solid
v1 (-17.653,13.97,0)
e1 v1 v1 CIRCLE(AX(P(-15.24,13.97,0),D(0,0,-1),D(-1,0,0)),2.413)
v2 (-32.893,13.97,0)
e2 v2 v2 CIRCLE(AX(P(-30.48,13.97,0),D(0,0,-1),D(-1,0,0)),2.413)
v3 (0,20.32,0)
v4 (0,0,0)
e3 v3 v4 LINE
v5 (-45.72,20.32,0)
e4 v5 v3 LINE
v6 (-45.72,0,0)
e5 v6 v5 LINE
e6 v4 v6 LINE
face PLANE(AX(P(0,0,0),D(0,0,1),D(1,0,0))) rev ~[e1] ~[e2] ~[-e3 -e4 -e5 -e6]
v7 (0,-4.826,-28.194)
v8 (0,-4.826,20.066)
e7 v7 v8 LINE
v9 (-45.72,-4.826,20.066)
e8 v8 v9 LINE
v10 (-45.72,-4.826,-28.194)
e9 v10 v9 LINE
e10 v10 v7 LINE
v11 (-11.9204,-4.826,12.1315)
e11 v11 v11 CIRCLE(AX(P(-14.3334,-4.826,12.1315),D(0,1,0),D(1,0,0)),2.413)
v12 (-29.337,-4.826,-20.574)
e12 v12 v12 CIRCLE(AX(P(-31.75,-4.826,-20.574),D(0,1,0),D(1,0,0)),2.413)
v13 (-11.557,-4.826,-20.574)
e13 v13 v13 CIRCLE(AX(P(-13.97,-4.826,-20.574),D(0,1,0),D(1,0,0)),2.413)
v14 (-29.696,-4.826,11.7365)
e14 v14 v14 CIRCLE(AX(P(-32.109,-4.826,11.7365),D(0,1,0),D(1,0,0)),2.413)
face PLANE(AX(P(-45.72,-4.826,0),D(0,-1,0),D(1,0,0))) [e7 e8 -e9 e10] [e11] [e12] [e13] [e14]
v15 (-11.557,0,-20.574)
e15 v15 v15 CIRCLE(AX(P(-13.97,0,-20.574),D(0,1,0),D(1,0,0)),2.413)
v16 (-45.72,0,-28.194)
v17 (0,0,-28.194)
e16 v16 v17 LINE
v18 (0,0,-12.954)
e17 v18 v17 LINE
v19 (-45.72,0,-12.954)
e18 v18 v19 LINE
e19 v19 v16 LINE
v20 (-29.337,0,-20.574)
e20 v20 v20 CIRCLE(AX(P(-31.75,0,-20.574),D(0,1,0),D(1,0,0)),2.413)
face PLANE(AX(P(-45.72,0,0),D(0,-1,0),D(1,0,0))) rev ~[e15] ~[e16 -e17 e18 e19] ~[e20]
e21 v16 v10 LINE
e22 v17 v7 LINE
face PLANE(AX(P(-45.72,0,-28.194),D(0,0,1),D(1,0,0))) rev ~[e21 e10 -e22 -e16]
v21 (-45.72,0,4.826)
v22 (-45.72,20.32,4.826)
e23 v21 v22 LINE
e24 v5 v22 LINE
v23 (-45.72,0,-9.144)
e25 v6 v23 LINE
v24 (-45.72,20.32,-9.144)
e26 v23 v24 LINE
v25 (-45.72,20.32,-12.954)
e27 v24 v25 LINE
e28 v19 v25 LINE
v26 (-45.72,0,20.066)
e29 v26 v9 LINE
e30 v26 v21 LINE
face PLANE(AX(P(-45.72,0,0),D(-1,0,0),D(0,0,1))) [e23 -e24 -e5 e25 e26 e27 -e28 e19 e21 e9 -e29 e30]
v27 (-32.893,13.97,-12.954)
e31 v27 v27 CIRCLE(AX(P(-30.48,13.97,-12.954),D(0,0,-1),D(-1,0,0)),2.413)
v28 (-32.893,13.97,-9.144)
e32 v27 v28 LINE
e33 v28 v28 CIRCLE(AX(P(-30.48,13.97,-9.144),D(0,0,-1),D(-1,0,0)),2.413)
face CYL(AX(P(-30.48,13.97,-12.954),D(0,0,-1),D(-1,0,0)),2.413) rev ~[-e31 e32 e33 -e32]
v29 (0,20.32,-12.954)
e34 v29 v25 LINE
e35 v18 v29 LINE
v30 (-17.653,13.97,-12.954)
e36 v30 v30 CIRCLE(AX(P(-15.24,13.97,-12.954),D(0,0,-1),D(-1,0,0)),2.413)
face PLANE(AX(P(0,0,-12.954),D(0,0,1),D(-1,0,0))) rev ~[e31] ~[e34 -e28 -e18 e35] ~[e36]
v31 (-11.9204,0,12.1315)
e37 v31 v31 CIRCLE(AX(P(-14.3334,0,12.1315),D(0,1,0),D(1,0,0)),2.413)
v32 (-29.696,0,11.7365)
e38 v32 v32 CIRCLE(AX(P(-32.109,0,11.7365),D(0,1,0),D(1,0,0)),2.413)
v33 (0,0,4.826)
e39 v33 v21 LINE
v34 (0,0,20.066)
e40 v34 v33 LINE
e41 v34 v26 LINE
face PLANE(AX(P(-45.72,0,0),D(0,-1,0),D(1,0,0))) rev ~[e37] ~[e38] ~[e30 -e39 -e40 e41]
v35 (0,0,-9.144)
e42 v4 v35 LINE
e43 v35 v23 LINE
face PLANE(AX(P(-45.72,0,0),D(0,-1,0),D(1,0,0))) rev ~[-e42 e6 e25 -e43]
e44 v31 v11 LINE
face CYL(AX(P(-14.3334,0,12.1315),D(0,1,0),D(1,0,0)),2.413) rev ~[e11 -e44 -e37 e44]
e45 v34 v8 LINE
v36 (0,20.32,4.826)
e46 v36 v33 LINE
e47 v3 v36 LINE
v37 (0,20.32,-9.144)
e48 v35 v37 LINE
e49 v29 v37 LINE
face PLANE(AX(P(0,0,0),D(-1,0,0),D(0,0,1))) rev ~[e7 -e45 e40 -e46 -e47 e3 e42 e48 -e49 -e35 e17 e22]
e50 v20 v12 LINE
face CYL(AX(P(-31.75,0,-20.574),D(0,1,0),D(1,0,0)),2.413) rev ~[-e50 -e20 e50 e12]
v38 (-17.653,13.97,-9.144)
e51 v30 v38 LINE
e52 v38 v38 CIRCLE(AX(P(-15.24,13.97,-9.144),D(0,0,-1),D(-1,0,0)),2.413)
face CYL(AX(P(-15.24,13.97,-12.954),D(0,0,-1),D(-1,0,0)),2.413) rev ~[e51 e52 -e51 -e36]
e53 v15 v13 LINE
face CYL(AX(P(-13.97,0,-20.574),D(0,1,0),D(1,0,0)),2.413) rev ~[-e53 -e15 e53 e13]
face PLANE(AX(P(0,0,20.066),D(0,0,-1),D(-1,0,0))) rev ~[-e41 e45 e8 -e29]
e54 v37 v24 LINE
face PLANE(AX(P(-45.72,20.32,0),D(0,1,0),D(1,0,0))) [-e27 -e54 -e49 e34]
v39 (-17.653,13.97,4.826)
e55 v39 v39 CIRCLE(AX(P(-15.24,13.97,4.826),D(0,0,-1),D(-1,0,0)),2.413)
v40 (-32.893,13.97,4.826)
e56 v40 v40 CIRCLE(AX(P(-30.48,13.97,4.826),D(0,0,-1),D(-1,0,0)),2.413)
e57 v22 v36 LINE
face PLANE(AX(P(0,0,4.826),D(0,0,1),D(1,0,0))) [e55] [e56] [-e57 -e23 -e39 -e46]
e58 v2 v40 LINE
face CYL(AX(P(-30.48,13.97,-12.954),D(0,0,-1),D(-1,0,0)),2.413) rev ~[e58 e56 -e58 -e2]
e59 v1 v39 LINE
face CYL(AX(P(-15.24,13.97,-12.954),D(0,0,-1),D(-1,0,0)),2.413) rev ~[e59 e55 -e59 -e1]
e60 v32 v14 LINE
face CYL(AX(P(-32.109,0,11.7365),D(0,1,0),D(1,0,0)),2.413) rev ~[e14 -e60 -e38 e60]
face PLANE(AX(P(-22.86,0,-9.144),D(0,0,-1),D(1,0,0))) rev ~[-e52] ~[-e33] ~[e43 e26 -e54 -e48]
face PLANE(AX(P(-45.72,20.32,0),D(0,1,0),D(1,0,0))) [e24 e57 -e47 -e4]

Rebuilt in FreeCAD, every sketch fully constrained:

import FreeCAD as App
import Part
import Sketcher
Q = App.Units.Quantity


def add_polygon(sketch, points):
    """Adds a closed chain of lines whose ends are joined by coincident constraints."""
    first, n = sketch.GeometryCount, len(points)
    for a, b in zip(points, points[1:] + points[:1]):
        sketch.addGeometry(Part.LineSegment(App.Vector(*a, 0), App.Vector(*b, 0)), False)
    for i in range(n):
        sketch.addConstraint(Sketcher.Constraint("Coincident", first + i, 2, first + (i + 1) % n, 1))

doc = App.newDocument("Part")
body = doc.addObject("PartDesign::Body", "Body")

# Sketch on XY plane
sketch1 = body.newObject("Sketcher::SketchObject", "Sketch")
sketch1.AttachmentSupport = (doc.getObject("XY_Plane"), [""])
sketch1.MapMode = "FlatFace"
add_polygon(sketch1, [(-45.72, 0), (0, 0), (0, 20.32), (-45.72, 20.32)])  # lines 0-3
sketch1.addConstraint([
    Sketcher.Constraint("Horizontal", 0),
    Sketcher.Constraint("Vertical", 1),
    Sketcher.Constraint("Horizontal", 2),
    Sketcher.Constraint("Vertical", 3),
    Sketcher.Constraint("Coincident", 0, 2, -1, 1),
    Sketcher.Constraint("DistanceX", 0, 1, 0, 2, Q("1.8 in")),
    Sketcher.Constraint("DistanceY", 1, 1, 1, 2, Q("0.8 in")),
])
pad1 = body.newObject("PartDesign::Pad", "Pad")
pad1.Profile = sketch1
pad1.Length = Q("0.19 in")

# Sketch on XZ plane
sketch2 = body.newObject("Sketcher::SketchObject", "Sketch001")
sketch2.AttachmentSupport = (doc.getObject("XZ_Plane"), [""])
sketch2.MapMode = "FlatFace"
add_polygon(sketch2, [(-45.72, -28.194), (0, -28.194), (0, 20.066), (-45.72, 20.066)])  # lines 0-3
sketch2.addConstraint([
    Sketcher.Constraint("Horizontal", 0),
    Sketcher.Constraint("Vertical", 1),
    Sketcher.Constraint("Horizontal", 2),
    Sketcher.Constraint("Vertical", 3),
    Sketcher.Constraint("PointOnObject", 0, 2, -2),
    Sketcher.Constraint("DistanceY", 0, 2, -1, 1, Q("1.11 in")),
    Sketcher.Constraint("DistanceX", 0, 1, 0, 2, Q("1.8 in")),
    Sketcher.Constraint("DistanceY", 1, 1, 1, 2, Q("1.9 in")),
])
pad2 = body.newObject("PartDesign::Pad", "Pad001")
pad2.Profile = sketch2
pad2.Length = Q("0.19 in")

# Sketch on XZ plane
sketch3 = body.newObject("Sketcher::SketchObject", "Sketch002")
sketch3.AttachmentSupport = (doc.getObject("XZ_Plane"), [""])
sketch3.MapMode = "FlatFace"
add_polygon(sketch3, [(-45.72, -9.144), (0, -9.144), (0, -12.954), (-45.72, -12.954)])  # lines 0-3
sketch3.addConstraint([
    Sketcher.Constraint("Horizontal", 0),
    Sketcher.Constraint("Vertical", 1),
    Sketcher.Constraint("Horizontal", 2),
    Sketcher.Constraint("Vertical", 3),
    Sketcher.Constraint("PointOnObject", 0, 2, -2),
    Sketcher.Constraint("DistanceY", 1, 2, 1, 1, Q("0.15 in")),
    Sketcher.Constraint("DistanceY", 0, 2, -1, 1, Q("0.36 in")),
    Sketcher.Constraint("DistanceX", 0, 1, 0, 2, Q("1.8 in")),
])
pad3 = body.newObject("PartDesign::Pad", "Pad002")
pad3.Profile = sketch3
pad3.Length = Q("0.8 in")
pad3.Reversed = True

# Sketch on XY plane
sketch4 = body.newObject("Sketcher::SketchObject", "Sketch003")
sketch4.AttachmentSupport = (doc.getObject("XY_Plane"), [""])
sketch4.MapMode = "FlatFace"
sketch4.AttachmentOffset = App.Placement(App.Vector(0, 0, -0.51 * 25.4), App.Rotation())
sketch4.addGeometry([
    Part.Circle(App.Vector(-30.48, 13.97, 0), App.Vector(0, 0, 1), 2.413),
    Part.Circle(App.Vector(-15.24, 13.97, 0), App.Vector(0, 0, 1), 2.413),
], False)
sketch4.addConstraint([
    Sketcher.Constraint("Equal", 0, 1),
    Sketcher.Constraint("Horizontal", 0, 3, 1, 3),
    Sketcher.Constraint("Diameter", 0, Q("0.19 in")),
    Sketcher.Constraint("DistanceX", 0, 3, -1, 1, Q("1.2 in")),
    Sketcher.Constraint("DistanceX", 1, 3, -1, 1, Q("0.6 in")),
    Sketcher.Constraint("DistanceY", -1, 1, 0, 3, Q("0.55 in")),
])
pocket1 = body.newObject("PartDesign::Pocket", "Pocket")
pocket1.Profile = sketch4
pocket1.Type = "ThroughAll"
pocket1.Reversed = True

# Sketch on XZ plane
sketch5 = body.newObject("Sketcher::SketchObject", "Sketch004")
sketch5.AttachmentSupport = (doc.getObject("XZ_Plane"), [""])
sketch5.MapMode = "FlatFace"
sketch5.addGeometry([
    Part.Circle(App.Vector(-13.97, -20.574, 0), App.Vector(0, 0, 1), 2.413),
    Part.Circle(App.Vector(-31.75, -20.574, 0), App.Vector(0, 0, 1), 2.413),
    Part.Circle(App.Vector(-14.3334, 12.1315, 0), App.Vector(0, 0, 1), 2.413),
    Part.Circle(App.Vector(-32.109, 11.7365, 0), App.Vector(0, 0, 1), 2.413),
], False)
sketch5.addConstraint([
    Sketcher.Constraint("Equal", 0, 1),
    Sketcher.Constraint("Equal", 1, 2),
    Sketcher.Constraint("Equal", 2, 3),
    Sketcher.Constraint("Horizontal", 0, 3, 1, 3),
    Sketcher.Constraint("Diameter", 0, Q("0.19 in")),
    Sketcher.Constraint("DistanceX", 1, 3, 0, 3, Q("0.7 in")),
    Sketcher.Constraint("DistanceX", 0, 3, -1, 1, Q("0.55 in")),
    Sketcher.Constraint("DistanceY", 0, 3, -1, 1, Q("0.81 in")),
    Sketcher.Constraint("DistanceX", 2, 3, -1, 1, Q("0.5643 in")),
    Sketcher.Constraint("DistanceY", -1, 1, 2, 3, 12.1315),
    Sketcher.Constraint("DistanceX", 3, 3, -1, 1, 32.109),
    Sketcher.Constraint("DistanceY", -1, 1, 3, 3, 11.7365),
])
pocket2 = body.newObject("PartDesign::Pocket", "Pocket001")
pocket2.Profile = sketch5
pocket2.Type = "ThroughAll"
pocket2.Reversed = True

doc.recompute()
